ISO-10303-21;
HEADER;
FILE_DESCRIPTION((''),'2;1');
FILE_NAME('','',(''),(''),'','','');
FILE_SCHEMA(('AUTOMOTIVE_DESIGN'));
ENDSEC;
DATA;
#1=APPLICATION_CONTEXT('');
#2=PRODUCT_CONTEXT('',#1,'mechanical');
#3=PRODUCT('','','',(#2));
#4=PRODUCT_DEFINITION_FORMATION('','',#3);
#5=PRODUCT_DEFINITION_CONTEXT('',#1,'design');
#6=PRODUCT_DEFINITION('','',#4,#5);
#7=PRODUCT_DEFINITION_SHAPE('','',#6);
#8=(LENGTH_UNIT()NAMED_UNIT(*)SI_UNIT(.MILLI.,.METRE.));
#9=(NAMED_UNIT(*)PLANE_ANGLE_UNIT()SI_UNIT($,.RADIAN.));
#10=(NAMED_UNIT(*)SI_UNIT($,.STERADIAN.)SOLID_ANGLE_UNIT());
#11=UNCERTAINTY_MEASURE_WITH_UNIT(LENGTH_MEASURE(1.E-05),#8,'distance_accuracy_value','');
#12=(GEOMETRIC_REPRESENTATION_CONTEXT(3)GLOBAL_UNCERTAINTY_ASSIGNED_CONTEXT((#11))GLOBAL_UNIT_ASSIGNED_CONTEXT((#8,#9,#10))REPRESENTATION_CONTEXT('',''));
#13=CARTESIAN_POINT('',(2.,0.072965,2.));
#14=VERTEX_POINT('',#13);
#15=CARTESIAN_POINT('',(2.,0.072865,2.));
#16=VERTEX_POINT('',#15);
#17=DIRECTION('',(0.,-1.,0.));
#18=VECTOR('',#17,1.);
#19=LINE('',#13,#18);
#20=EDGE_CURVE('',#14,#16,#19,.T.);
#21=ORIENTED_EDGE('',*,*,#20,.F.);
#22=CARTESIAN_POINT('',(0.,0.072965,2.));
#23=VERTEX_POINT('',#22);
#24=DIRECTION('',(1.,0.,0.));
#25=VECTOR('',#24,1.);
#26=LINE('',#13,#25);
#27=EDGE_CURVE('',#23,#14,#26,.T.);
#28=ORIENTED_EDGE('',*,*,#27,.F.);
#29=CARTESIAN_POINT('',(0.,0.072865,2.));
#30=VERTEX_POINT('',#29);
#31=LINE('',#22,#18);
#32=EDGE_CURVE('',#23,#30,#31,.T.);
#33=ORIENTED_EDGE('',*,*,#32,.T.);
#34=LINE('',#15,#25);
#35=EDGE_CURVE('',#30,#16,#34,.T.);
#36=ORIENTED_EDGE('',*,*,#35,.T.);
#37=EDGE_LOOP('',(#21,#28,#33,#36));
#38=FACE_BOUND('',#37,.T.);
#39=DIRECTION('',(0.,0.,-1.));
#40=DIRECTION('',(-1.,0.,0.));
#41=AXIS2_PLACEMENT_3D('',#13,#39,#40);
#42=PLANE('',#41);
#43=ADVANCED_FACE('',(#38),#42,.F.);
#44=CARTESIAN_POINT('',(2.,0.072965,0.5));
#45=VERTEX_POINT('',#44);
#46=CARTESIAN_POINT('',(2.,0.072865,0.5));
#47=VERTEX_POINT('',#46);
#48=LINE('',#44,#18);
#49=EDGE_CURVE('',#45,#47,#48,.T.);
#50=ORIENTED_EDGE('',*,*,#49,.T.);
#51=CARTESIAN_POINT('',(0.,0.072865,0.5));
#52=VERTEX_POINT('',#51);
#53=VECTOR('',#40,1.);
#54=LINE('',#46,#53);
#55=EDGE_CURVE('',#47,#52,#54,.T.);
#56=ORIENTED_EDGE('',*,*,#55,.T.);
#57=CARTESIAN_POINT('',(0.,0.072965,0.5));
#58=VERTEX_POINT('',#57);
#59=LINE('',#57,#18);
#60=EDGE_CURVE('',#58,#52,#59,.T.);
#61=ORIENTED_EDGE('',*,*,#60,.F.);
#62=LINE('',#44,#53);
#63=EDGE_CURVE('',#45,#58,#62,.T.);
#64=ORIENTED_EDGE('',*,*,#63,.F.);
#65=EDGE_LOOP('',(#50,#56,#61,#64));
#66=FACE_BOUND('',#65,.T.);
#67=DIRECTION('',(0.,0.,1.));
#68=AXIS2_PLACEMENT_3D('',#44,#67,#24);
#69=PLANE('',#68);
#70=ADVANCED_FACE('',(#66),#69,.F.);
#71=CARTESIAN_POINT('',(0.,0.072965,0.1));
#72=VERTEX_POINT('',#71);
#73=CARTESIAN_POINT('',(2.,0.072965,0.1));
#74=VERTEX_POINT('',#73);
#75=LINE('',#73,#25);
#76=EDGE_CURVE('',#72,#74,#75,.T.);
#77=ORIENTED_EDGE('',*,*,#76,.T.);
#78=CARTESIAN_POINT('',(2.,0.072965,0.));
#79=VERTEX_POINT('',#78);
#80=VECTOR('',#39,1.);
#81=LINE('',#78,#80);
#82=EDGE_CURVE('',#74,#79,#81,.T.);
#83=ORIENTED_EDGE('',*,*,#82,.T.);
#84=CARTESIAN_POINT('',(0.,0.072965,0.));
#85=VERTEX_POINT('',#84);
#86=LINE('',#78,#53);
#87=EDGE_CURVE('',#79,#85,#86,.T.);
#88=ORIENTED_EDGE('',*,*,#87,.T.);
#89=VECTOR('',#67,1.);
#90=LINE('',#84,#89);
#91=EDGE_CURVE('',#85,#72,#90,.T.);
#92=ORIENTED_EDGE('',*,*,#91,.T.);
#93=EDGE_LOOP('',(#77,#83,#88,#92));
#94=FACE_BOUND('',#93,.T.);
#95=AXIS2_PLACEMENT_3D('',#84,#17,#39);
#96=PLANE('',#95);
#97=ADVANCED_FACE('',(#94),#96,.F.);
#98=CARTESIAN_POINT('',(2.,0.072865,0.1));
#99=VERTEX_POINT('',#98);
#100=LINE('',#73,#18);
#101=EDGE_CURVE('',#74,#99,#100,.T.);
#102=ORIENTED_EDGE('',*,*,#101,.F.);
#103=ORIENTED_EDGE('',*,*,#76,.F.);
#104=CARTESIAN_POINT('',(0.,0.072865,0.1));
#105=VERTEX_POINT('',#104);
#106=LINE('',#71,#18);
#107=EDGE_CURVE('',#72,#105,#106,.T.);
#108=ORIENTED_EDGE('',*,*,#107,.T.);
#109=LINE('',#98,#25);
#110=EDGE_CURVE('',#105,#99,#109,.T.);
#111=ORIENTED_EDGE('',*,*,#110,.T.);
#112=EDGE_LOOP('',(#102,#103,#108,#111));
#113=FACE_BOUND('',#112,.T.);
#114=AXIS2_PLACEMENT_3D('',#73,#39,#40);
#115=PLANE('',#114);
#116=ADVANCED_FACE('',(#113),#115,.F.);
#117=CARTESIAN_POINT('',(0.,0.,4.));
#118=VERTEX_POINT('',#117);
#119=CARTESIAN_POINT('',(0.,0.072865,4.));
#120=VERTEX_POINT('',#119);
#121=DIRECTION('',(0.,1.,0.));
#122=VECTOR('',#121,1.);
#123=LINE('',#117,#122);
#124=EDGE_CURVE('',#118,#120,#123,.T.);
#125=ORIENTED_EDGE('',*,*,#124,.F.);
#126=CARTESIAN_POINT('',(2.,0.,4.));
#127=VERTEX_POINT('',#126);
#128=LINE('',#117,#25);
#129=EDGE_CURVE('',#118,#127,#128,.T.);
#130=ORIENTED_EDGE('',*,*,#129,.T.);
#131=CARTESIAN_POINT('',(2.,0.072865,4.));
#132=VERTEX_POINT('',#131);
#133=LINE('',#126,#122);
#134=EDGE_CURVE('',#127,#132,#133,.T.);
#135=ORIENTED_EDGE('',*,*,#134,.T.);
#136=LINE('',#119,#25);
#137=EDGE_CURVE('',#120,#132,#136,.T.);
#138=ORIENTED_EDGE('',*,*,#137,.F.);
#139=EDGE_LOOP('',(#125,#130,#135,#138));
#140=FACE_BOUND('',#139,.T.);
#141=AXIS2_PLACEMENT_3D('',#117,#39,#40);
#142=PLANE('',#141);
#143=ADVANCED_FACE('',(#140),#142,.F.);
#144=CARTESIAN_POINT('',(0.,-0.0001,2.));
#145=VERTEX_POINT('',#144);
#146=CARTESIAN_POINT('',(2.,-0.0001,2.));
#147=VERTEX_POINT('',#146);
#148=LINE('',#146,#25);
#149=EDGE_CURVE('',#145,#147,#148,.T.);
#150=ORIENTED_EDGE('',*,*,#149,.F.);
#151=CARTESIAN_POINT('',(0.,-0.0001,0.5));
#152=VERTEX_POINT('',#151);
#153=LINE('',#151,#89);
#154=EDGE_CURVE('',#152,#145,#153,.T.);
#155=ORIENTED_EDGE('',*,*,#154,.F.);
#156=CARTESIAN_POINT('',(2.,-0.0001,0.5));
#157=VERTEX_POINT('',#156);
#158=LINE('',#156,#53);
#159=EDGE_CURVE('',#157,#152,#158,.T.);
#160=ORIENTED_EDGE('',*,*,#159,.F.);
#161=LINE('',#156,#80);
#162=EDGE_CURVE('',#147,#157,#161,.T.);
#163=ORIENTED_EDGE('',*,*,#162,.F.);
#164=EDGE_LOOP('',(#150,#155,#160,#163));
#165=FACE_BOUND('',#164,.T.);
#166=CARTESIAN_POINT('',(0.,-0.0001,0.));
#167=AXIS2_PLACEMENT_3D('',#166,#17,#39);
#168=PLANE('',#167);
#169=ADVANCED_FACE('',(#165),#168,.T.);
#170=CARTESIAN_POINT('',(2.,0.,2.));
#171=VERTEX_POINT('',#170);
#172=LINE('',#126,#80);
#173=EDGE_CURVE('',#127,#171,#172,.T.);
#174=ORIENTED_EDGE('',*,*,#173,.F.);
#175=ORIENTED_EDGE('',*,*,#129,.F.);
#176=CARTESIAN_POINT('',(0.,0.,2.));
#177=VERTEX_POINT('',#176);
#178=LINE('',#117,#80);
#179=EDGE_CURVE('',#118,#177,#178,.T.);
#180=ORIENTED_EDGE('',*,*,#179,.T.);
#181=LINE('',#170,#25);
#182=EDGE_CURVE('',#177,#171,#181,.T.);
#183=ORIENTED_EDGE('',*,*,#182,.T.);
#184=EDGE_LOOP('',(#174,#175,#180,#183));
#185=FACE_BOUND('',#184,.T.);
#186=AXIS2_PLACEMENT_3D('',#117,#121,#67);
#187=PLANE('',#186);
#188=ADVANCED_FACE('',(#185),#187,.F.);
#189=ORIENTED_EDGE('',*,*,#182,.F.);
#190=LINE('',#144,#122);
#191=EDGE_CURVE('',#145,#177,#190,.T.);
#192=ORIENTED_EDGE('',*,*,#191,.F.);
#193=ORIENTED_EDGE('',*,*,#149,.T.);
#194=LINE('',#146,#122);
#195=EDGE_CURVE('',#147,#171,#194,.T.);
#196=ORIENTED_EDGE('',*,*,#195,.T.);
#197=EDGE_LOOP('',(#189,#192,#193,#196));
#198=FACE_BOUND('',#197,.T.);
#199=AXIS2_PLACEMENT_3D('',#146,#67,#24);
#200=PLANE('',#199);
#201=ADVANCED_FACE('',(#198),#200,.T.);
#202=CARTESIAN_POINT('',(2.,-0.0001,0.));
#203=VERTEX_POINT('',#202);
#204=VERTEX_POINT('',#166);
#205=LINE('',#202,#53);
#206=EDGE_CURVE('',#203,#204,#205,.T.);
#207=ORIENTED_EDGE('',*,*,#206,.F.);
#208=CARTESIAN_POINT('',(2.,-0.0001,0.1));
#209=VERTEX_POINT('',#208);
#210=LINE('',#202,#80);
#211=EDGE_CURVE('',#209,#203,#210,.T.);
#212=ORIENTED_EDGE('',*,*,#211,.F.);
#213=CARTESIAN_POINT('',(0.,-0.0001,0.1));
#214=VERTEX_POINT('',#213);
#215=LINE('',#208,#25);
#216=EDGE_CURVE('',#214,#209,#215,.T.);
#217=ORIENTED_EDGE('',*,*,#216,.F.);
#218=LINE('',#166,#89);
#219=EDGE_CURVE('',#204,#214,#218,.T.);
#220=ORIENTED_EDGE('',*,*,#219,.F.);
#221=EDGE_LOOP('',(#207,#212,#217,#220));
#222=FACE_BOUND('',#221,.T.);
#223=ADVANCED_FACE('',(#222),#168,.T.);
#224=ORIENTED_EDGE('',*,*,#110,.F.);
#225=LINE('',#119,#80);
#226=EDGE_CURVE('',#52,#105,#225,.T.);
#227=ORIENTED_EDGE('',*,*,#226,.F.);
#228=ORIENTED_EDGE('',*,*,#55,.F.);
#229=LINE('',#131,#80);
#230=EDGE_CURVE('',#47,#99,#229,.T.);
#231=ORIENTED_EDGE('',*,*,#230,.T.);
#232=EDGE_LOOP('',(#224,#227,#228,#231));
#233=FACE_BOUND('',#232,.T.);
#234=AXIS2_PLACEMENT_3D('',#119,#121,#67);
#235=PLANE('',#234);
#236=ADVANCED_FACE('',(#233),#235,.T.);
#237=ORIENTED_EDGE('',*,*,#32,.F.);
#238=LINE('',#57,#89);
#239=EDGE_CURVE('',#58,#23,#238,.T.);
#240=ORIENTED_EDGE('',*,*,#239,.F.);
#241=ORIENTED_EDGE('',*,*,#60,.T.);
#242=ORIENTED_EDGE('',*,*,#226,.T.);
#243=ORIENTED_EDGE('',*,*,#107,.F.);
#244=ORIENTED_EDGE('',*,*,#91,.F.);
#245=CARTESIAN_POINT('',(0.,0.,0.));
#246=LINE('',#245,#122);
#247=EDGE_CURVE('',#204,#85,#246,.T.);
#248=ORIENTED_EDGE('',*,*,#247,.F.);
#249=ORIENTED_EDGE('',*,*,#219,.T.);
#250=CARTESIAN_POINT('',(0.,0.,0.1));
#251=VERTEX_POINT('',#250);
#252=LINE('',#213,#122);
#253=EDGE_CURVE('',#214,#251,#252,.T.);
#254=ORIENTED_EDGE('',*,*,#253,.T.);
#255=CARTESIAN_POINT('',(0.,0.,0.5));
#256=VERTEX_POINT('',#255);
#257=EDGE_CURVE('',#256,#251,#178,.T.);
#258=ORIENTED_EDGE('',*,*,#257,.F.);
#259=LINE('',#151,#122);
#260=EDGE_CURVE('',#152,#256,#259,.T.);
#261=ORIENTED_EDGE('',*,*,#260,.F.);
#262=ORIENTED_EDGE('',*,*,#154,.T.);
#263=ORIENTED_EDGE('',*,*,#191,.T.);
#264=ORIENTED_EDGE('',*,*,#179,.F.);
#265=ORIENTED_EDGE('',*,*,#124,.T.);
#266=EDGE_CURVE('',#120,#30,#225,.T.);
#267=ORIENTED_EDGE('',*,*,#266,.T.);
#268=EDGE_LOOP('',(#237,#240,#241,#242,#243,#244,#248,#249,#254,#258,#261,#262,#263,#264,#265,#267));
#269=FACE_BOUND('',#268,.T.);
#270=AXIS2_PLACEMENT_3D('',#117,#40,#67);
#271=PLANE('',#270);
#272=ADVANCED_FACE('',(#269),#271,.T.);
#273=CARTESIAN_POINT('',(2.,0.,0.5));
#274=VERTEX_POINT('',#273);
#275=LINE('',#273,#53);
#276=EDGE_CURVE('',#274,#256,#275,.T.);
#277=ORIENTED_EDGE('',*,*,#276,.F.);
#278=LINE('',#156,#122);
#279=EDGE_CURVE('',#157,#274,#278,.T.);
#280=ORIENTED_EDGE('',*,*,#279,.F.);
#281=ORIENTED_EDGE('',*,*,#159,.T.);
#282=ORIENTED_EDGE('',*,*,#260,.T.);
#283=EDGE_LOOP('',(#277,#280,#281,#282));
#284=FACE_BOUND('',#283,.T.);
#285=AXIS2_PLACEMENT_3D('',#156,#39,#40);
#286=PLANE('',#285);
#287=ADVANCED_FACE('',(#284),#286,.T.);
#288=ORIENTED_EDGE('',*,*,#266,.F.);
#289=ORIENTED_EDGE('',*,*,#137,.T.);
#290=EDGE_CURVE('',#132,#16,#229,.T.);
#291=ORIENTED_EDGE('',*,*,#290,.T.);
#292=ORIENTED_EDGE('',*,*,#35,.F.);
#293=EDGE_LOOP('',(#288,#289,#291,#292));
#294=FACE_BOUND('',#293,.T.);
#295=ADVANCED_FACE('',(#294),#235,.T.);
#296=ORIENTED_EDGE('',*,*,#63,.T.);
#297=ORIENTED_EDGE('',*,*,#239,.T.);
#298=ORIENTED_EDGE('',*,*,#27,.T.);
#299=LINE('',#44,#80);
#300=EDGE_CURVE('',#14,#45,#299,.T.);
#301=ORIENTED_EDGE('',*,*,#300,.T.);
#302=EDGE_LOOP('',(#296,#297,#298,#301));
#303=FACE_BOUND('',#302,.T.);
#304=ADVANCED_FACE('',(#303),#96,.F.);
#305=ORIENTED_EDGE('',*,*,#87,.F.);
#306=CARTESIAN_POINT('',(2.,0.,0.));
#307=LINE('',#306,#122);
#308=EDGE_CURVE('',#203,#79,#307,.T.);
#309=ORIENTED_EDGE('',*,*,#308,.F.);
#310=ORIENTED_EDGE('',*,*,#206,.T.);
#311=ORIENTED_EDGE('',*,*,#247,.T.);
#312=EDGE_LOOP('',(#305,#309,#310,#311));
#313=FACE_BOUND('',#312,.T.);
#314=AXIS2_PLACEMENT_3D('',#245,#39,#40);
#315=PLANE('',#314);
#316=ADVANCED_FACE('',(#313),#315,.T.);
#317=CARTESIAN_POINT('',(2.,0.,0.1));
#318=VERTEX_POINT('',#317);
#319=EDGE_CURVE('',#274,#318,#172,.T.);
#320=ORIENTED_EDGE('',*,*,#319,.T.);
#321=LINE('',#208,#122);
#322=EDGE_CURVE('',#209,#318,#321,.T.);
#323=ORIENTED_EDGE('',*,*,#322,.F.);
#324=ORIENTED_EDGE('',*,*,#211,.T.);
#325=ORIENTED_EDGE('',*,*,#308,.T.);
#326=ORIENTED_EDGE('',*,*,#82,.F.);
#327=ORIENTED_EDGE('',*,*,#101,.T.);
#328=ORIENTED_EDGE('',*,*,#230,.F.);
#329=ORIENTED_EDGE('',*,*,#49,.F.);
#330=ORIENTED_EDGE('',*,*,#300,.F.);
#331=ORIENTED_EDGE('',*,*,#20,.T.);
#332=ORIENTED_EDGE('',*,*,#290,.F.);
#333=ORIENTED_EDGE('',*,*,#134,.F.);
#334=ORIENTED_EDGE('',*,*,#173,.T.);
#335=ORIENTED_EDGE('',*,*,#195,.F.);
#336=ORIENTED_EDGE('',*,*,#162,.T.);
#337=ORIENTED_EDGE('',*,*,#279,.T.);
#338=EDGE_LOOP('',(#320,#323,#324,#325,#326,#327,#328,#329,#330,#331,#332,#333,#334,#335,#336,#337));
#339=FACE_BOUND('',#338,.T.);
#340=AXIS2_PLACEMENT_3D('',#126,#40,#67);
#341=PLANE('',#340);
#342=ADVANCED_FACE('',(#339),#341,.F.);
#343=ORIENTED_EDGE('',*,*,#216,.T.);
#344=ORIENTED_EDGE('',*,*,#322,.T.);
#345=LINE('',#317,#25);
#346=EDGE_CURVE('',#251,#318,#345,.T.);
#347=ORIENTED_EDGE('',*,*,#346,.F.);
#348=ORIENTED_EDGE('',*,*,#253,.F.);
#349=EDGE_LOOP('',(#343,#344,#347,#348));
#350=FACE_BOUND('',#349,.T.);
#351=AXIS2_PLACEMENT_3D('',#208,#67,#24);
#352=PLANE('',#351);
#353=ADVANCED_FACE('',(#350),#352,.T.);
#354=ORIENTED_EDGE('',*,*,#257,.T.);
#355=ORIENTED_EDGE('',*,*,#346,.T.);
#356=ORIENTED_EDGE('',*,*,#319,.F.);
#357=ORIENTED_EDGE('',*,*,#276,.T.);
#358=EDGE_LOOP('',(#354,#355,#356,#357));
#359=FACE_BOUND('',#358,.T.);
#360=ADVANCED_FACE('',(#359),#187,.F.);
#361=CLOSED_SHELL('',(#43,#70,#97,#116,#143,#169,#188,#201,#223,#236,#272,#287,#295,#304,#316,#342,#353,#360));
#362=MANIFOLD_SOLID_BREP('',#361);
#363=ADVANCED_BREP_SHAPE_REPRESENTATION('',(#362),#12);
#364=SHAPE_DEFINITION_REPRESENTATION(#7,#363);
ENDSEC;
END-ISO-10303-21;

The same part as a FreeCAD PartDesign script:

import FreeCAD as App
import Part
import Sketcher
Q = App.Units.Quantity


def add_polygon(sketch, points):
    """Adds a closed chain of lines whose ends are joined by coincident constraints."""
    first, n = sketch.GeometryCount, len(points)
    for a, b in zip(points, points[1:] + points[:1]):
        sketch.addGeometry(Part.LineSegment(App.Vector(*a, 0), App.Vector(*b, 0)), False)
    for i in range(n):
        sketch.addConstraint(Sketcher.Constraint("Coincident", first + i, 2, first + (i + 1) % n, 1))

doc = App.newDocument("Part")
body = doc.addObject("PartDesign::Body", "Body")

sketch1 = body.newObject("Sketcher::SketchObject", "Sketch")
sketch1.AttachmentSupport = (doc.getObject("XY_Plane"), [""])
sketch1.MapMode = "FlatFace"
add_polygon(sketch1, [(0, 0.072865), (0, 0), (2, 0), (2, 0.072865)])
sketch1.addConstraint([
    Sketcher.Constraint("Vertical", 0),
    Sketcher.Constraint("Horizontal", 1),
    Sketcher.Constraint("Vertical", 2),
    Sketcher.Constraint("Horizontal", 3),
    Sketcher.Constraint("Coincident", 0, 2, -1, 1),
    Sketcher.Constraint("DistanceX", 1, 1, 1, 2, Q("2 mm")),
    Sketcher.Constraint("DistanceY", 0, 2, 0, 1, Q("0.072865 mm")),
])
pad1 = body.newObject("PartDesign::Pad", "Pad")
pad1.Profile = sketch1
pad1.Length = 4

sketch2 = body.newObject("Sketcher::SketchObject", "Sketch001")
sketch2.AttachmentSupport = (doc.getObject("XZ_Plane"), [""])
sketch2.MapMode = "FlatFace"
sketch2.AttachmentOffset = App.Placement(App.Vector(0, 0, -0.072865), App.Rotation())
add_polygon(sketch2, [(0, 0), (0, 0.1), (2, 0.1), (2, 0)])
add_polygon(sketch2, [(0, 0.5), (0, 2), (2, 2), (2, 0.5)])
sketch2.addConstraint([
    Sketcher.Constraint("Vertical", 0),
    Sketcher.Constraint("Horizontal", 1),
    Sketcher.Constraint("Vertical", 2),
    Sketcher.Constraint("Horizontal", 3),
    Sketcher.Constraint("Vertical", 4),
    Sketcher.Constraint("Horizontal", 5),
    Sketcher.Constraint("Vertical", 6),
    Sketcher.Constraint("Horizontal", 7),
    Sketcher.Constraint("Coincident", 3, 2, -1, 1),
    Sketcher.Constraint("PointOnObject", 4, 2, -2),
    Sketcher.Constraint("Vertical", 2, 2, 5, 2),
    Sketcher.Constraint("DistanceX", 1, 1, 1, 2, Q("2 mm")),
    Sketcher.Constraint("DistanceY", 0, 1, 0, 2, Q("0.1 mm")),
    Sketcher.Constraint("DistanceY", 4, 1, 4, 2, Q("1.5 mm")),
    Sketcher.Constraint("DistanceY", -1, 1, 4, 2, Q("2 mm")),
])
pad2 = body.newObject("PartDesign::Pad", "Pad001")
pad2.Profile = sketch2
pad2.Length = 0.0001
pad2.Reversed = True

sketch3 = body.newObject("Sketcher::SketchObject", "Sketch002")
sketch3.AttachmentSupport = (doc.getObject("XZ_Plane"), [""])
sketch3.MapMode = "FlatFace"
add_polygon(sketch3, [(0, 0), (0, 0.1), (2, 0.1), (2, 0)])
add_polygon(sketch3, [(0, 0.5), (0, 2), (2, 2), (2, 0.5)])
sketch3.addConstraint([
    Sketcher.Constraint("Vertical", 0),
    Sketcher.Constraint("Horizontal", 1),
    Sketcher.Constraint("Vertical", 2),
    Sketcher.Constraint("Horizontal", 3),
    Sketcher.Constraint("Vertical", 4),
    Sketcher.Constraint("Horizontal", 5),
    Sketcher.Constraint("Vertical", 6),
    Sketcher.Constraint("Horizontal", 7),
    Sketcher.Constraint("Coincident", 3, 2, -1, 1),
    Sketcher.Constraint("PointOnObject", 4, 2, -2),
    Sketcher.Constraint("Vertical", 2, 2, 5, 2),
    Sketcher.Constraint("DistanceX", 1, 1, 1, 2, Q("2 mm")),
    Sketcher.Constraint("DistanceY", 0, 1, 0, 2, Q("0.1 mm")),
    Sketcher.Constraint("DistanceY", 4, 1, 4, 2, Q("1.5 mm")),
    Sketcher.Constraint("DistanceY", -1, 1, 4, 2, Q("2 mm")),
])
pad3 = body.newObject("PartDesign::Pad", "Pad002")
pad3.Profile = sketch3
pad3.Length = 0.0001

doc.recompute()
